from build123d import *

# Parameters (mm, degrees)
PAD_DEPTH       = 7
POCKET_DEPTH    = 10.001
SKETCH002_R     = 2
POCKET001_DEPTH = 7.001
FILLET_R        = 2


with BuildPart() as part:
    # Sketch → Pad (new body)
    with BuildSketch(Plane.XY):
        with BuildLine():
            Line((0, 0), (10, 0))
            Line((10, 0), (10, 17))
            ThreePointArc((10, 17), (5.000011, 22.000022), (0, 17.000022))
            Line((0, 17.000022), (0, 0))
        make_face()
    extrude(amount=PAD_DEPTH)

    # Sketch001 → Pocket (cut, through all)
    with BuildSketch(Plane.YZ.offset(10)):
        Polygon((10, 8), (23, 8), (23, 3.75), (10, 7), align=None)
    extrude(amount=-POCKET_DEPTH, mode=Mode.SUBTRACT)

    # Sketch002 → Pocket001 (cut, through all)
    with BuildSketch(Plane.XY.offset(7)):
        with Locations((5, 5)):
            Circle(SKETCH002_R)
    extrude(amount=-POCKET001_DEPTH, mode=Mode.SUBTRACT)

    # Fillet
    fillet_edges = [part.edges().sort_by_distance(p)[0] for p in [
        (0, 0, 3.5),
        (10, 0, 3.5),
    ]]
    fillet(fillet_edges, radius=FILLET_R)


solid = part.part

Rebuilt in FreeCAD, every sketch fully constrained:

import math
import FreeCAD as App
import Part
import Sketcher
from FreeCAD import Vector


def edges_at(feature, points):
    """Names of the edges that pass closest to the given points."""
    edges = feature.Shape.Edges
    near = lambda p: min(range(len(edges)), key=lambda i: edges[i].distToShape(Part.Vertex(*p))[0])
    return sorted({f"Edge{near(p) + 1}" for p in points})


def add_polygon(sketch, points):
    """Adds a closed chain of lines whose ends are joined by coincident constraints."""
    first, n = sketch.GeometryCount, len(points)
    for a, b in zip(points, points[1:] + points[:1]):
        sketch.addGeometry(Part.LineSegment(App.Vector(*a, 0), App.Vector(*b, 0)), False)
    for i in range(n):
        sketch.addConstraint(Sketcher.Constraint("Coincident", first + i, 2, first + (i + 1) % n, 1))

doc = App.newDocument("Part")
body = doc.addObject("PartDesign::Body", "Body")

sketch1 = body.newObject("Sketcher::SketchObject", "Sketch")
sketch1.AttachmentSupport = (doc.getObject("XY_Plane"), [""])
sketch1.MapMode = "FlatFace"
sketch1.addGeometry([
    Part.LineSegment(Vector(0, 0, 0), Vector(10, 0, 0)),
    Part.LineSegment(Vector(10, 0, 0), Vector(10, 17, 0)),
    Part.ArcOfCircle(Part.Circle(Vector(5, 17, 0), Vector(0, 0, 1), 5), math.radians(0), math.radians(180)),
    Part.LineSegment(Vector(0, 17, 0), Vector(0, 0, 0)),
], False)
sketch1.addConstraint([
    Sketcher.Constraint("Coincident", 0, 2, 1, 1),
    Sketcher.Constraint("Coincident", 1, 2, 2, 1),
    Sketcher.Constraint("Tangent", 2, 2, 3, 1),
    Sketcher.Constraint("Coincident", 3, 2, 0, 1),
    Sketcher.Constraint("Horizontal", 0),
    Sketcher.Constraint("Vertical", 1),
    Sketcher.Constraint("Vertical", 3),
    Sketcher.Constraint("Coincident", 3, 2, -1, 1),
    Sketcher.Constraint("Radius", 2, 5.0),
    Sketcher.Constraint("DistanceY", 1, 1, 1, 2, 17.0),
    Sketcher.Constraint("DistanceY", 3, 2, 3, 1, 17.000022),
])
pad1 = body.newObject("PartDesign::Pad", "Pad")
pad1.Profile = sketch1
pad1.Length = 7

sketch2 = body.newObject("Sketcher::SketchObject", "Sketch001")
sketch2.AttachmentSupport = (doc.getObject("YZ_Plane"), [""])
sketch2.MapMode = "FlatFace"
sketch2.AttachmentOffset = App.Placement(Vector(0, 0, 10), App.Rotation())
add_polygon(sketch2, [(23, 8), (10, 8), (10, 7), (23, 3.8)])
sketch2.addConstraint([
    Sketcher.Constraint("Horizontal", 0),
    Sketcher.Constraint("Vertical", 1),
    Sketcher.Constraint("Vertical", 3),
    Sketcher.Constraint("DistanceX", 0, 2, 0, 1, 13.0),
    Sketcher.Constraint("DistanceY", 1, 2, 1, 1, 1.0),
    Sketcher.Constraint("DistanceX", -1, 1, 0, 2, 10.0),
    Sketcher.Constraint("DistanceY", -1, 1, 0, 2, 8.0),
    Sketcher.Constraint("DistanceY", 3, 1, 3, 2, 4.25),
])
pocket1 = body.newObject("PartDesign::Pocket", "Pocket")
pocket1.Profile = sketch2
pocket1.Type = "ThroughAll"

sketch3 = body.newObject("Sketcher::SketchObject", "Sketch002")
sketch3.AttachmentSupport = (doc.getObject("XY_Plane"), [""])
sketch3.MapMode = "FlatFace"
sketch3.AttachmentOffset = App.Placement(Vector(0, 0, 7), App.Rotation())
sketch3.addGeometry(Part.Circle(Vector(5, 5, 0), Vector(0, 0, 1), 2), False)
sketch3.addConstraint([
    Sketcher.Constraint("Diameter", 0, 4.0),
    Sketcher.Constraint("DistanceX", -1, 1, 0, 3, 5.0),
    Sketcher.Constraint("DistanceY", -1, 1, 0, 3, 5.0),
])
pocket2 = body.newObject("PartDesign::Pocket", "Pocket001")
pocket2.Profile = sketch3
pocket2.Type = "ThroughAll"
doc.recompute()

fillet = body.newObject("PartDesign::Fillet", "Fillet")
fillet.Base = (pocket2, edges_at(pocket2, [(0, 0, 3.5), (10, 0, 3.5)]))
fillet.Radius = 2

doc.recompute()
